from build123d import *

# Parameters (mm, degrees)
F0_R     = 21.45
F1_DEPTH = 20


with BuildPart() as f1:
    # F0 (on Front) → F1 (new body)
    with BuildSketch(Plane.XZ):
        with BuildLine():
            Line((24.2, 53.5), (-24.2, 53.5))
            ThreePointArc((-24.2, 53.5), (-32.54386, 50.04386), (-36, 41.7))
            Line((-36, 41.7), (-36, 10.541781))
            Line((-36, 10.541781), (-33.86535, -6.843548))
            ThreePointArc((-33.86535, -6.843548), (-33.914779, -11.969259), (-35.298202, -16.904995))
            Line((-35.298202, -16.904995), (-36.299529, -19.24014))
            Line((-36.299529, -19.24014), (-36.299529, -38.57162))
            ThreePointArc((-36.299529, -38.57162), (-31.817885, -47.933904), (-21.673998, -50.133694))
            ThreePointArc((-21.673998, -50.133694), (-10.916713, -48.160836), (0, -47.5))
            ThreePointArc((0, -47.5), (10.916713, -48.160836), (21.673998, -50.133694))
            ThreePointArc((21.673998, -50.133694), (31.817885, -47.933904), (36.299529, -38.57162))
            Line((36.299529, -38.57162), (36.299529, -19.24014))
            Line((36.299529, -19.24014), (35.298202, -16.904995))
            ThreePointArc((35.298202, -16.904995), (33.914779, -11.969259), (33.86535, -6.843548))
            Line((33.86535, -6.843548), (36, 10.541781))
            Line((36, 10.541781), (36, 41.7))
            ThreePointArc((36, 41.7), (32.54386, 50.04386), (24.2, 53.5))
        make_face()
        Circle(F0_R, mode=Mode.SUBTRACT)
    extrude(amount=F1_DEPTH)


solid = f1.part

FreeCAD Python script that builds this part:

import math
import FreeCAD as App
import Part
import Sketcher

V = App.Vector
Q = App.Units.Quantity

doc = App.newDocument("Part")
body = doc.addObject("PartDesign::Body", "Body")

sketch1 = doc.addObject("Sketcher::SketchObject", "Sketch")
body.addObject(sketch1)
sketch1.AttachmentSupport = (doc.XZ_Plane, [""])
sketch1.MapMode = "FlatFace"
sketch1.addGeometry([
    Part.LineSegment(V(24.2, 53.5, 0), V(-24.2, 53.5, 0)),
    Part.ArcOfCircle(Part.Circle(V(-24.2, 41.7, 0), V(0, 0, 1), 11.8), math.radians(90), math.radians(180)),
    Part.LineSegment(V(-36, 41.7, 0), V(-36, 10.541781, 0)),
    Part.LineSegment(V(-36, 10.541781, 0), V(-33.86535, -6.843548, 0)),
    Part.ArcOfCircle(Part.Circle(V(-53.22001, -9.219998, 0), V(0, 0, 1), 19.500009), math.radians(-23.209993), math.radians(6.999991)),
    Part.LineSegment(V(-35.298202, -16.904995, 0), V(-36.299529, -19.24014, 0)),
    Part.LineSegment(V(-36.299529, -19.24014, 0), V(-36.299529, -38.57162, 0)),
    Part.ArcOfCircle(Part.Circle(V(-24.5, -38.677092, 0), V(0, 0, 1), 11.800001), math.radians(179.487867), math.radians(283.856539)),
    Part.ArcOfCircle(Part.Circle(V(-0.000003, -137.999961, 0), V(0, 0, 1), 90.499961), math.radians(89.999998), math.radians(103.856546)),
    Part.ArcOfCircle(Part.Circle(V(0.000003, -137.999961, 0), V(0, 0, 1), 90.499961), math.radians(76.143454), math.radians(90.000002)),
    Part.ArcOfCircle(Part.Circle(V(24.5, -38.677092, 0), V(0, 0, 1), 11.800001), math.radians(-103.856539), math.radians(0.512133)),
    Part.LineSegment(V(36.299529, -38.57162, 0), V(36.299529, -19.24014, 0)),
    Part.LineSegment(V(36.299529, -19.24014, 0), V(35.298202, -16.904995, 0)),
    Part.ArcOfCircle(Part.Circle(V(53.22001, -9.219998, 0), V(0, 0, 1), 19.500009), math.radians(173.000009), math.radians(203.209993)),
    Part.LineSegment(V(33.86535, -6.843548, 0), V(36, 10.541781, 0)),
    Part.LineSegment(V(36, 10.541781, 0), V(36, 41.7, 0)),
    Part.ArcOfCircle(Part.Circle(V(24.2, 41.7, 0), V(0, 0, 1), 11.8), math.radians(0), math.radians(90)),
    Part.Circle(V(0, 0, 0), V(0, 0, 1), 21.45),
], False)
sketch1.addConstraint([
    Sketcher.Constraint("Tangent", 0, 2, 1, 1),
    Sketcher.Constraint("Tangent", 1, 2, 2, 1),
    Sketcher.Constraint("Coincident", 2, 2, 3, 1),
    Sketcher.Constraint("Tangent", 3, 2, 4, 2),
    Sketcher.Constraint("Tangent", 4, 1, 5, 1),
    Sketcher.Constraint("Coincident", 5, 2, 6, 1),
    Sketcher.Constraint("Coincident", 6, 2, 7, 1),
    Sketcher.Constraint("Tangent", 7, 2, 8, 2),
    Sketcher.Constraint("Tangent", 8, 1, 9, 2),
    Sketcher.Constraint("Tangent", 9, 1, 10, 1),
    Sketcher.Constraint("Coincident", 10, 2, 11, 1),
    Sketcher.Constraint("Coincident", 11, 2, 12, 1),
    Sketcher.Constraint("Tangent", 12, 2, 13, 2),
    Sketcher.Constraint("Tangent", 13, 1, 14, 1),
    Sketcher.Constraint("Coincident", 14, 2, 15, 1),
    Sketcher.Constraint("Tangent", 15, 2, 16, 1),
    Sketcher.Constraint("Tangent", 16, 2, 0, 1),
    Sketcher.Constraint("Horizontal", 0),
    Sketcher.Constraint("Vertical", 2),
    Sketcher.Constraint("Vertical", 6),
    Sketcher.Constraint("Vertical", 11),
    Sketcher.Constraint("Vertical", 15),
    Sketcher.Constraint("Coincident", 17, 3, -1, 1),
    Sketcher.Constraint("Equal", 1, 7),
    Sketcher.Constraint("Equal", 8, 9),
    Sketcher.Constraint("Equal", 7, 10),
    Sketcher.Constraint("Equal", 4, 13),
    Sketcher.Constraint("Equal", 10, 16),
    Sketcher.Constraint("Symmetric", 7, 3, 10, 3, -2),
    Sketcher.Constraint("Symmetric", 4, 3, 13, 3, -2),
    Sketcher.Constraint("Symmetric", 5, 2, 11, 2, -2),
    Sketcher.Constraint("Symmetric", 2, 2, 14, 2, -2),
    Sketcher.Constraint("PointOnObject", 8, 1, -2),
    Sketcher.Constraint("Diameter", 17, 42.9),
    Sketcher.Constraint("Radius", 1, 11.8),
    Sketcher.Constraint("Angle", 3, Q("-83 deg")),
    Sketcher.Constraint("DistanceX", 0, 2, 0, 1, 48.4),
    Sketcher.Constraint("DistanceX", 7, 3, 10, 3, 48.999999),
    Sketcher.Constraint("DistanceY", -1, 1, 1, 3, 41.7),
    Sketcher.Constraint("DistanceY", 8, 1, -1, 1, 47.5),
    Sketcher.Constraint("Angle", 5, Q("-113.210002 deg")),
    Sketcher.Constraint("DistanceY", 4, 3, -1, 1, 9.219998),
    Sketcher.Constraint("Radius", 4, 19.500009),
    Sketcher.Constraint("Radius", 8, 90.499961),
    Sketcher.Constraint("DistanceY", 2, 2, 2, 1, 31.158219),
    Sketcher.Constraint("DistanceY", 6, 2, 6, 1, 19.33148),
])
pad1 = doc.addObject("PartDesign::Pad", "Pad")
body.addObject(pad1)
pad1.Profile = sketch1
pad1.Length = 20

doc.recompute()
